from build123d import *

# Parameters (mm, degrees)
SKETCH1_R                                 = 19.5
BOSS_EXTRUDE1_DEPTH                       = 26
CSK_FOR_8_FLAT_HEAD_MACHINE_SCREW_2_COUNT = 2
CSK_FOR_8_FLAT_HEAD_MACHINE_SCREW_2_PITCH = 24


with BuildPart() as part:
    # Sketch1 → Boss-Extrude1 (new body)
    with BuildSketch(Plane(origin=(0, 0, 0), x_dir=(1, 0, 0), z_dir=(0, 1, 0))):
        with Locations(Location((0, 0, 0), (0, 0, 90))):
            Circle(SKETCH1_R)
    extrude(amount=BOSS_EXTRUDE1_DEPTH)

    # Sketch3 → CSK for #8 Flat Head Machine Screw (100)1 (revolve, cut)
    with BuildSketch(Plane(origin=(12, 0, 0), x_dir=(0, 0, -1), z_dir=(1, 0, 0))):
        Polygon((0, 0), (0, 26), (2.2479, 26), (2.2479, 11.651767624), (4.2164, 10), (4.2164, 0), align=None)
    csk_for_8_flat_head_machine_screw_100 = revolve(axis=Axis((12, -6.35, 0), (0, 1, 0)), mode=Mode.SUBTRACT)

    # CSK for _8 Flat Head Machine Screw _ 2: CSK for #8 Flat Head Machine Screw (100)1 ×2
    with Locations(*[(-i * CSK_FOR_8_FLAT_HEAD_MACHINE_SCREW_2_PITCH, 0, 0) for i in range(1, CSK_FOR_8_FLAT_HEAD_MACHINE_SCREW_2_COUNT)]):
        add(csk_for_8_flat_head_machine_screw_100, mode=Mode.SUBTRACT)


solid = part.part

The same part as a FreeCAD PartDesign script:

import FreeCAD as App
import Part
import Sketcher

V = App.Vector
Q = App.Units.Quantity

doc = App.newDocument("Part")
body = doc.addObject("PartDesign::Body", "Body")

sketch1 = doc.addObject("Sketcher::SketchObject", "Sketch")
body.addObject(sketch1)
sketch1.AttachmentSupport = (doc.XZ_Plane, [""])
sketch1.MapMode = "FlatFace"
sketch1.addGeometry(Part.Circle(V(0, 0, 0), V(0, 0, 1), 20), False)
sketch1.addConstraint(Sketcher.Constraint("Coincident", 0, 3, -1, 1))
sketch1.addConstraint(Sketcher.Constraint("Diameter", 0, 39.0))
pad1 = doc.addObject("PartDesign::Pad", "Pad")
body.addObject(pad1)
pad1.Profile = sketch1
pad1.Length = 26
pad1.Reversed = True

sketch2 = doc.addObject("Sketcher::SketchObject", "Sketch001")
body.addObject(sketch2)
sketch2.AttachmentSupport = (doc.YZ_Plane, [""])
sketch2.MapMode = "FlatFace"
sketch2.AttachmentOffset = App.Placement(V(0, 0, 12), App.Rotation())
sketch2.addGeometry(Part.LineSegment(V(26, 0, 0), V(0, 0, 0)), False)
sketch2.addGeometry(Part.LineSegment(V(0, 0, 0), V(0, -4.2, 0)), False)
sketch2.addGeometry(Part.LineSegment(V(0, -4.2, 0), V(10, -4.2, 0)), False)
sketch2.addGeometry(Part.LineSegment(V(10, -4.2, 0), V(11.7, -2.2, 0)), False)
sketch2.addGeometry(Part.LineSegment(V(11.7, -2.2, 0), V(26, -2.2, 0)), False)
sketch2.addGeometry(Part.LineSegment(V(26, -2.2, 0), V(26, 0, 0)), False)
sketch2.addConstraint(Sketcher.Constraint("Coincident", 0, 2, 1, 1))
sketch2.addConstraint(Sketcher.Constraint("Coincident", 1, 2, 2, 1))
sketch2.addConstraint(Sketcher.Constraint("Coincident", 2, 2, 3, 1))
sketch2.addConstraint(Sketcher.Constraint("Coincident", 3, 2, 4, 1))
sketch2.addConstraint(Sketcher.Constraint("Coincident", 4, 2, 5, 1))
sketch2.addConstraint(Sketcher.Constraint("Coincident", 5, 2, 0, 1))
sketch2.addConstraint(Sketcher.Constraint("Horizontal", 0))
sketch2.addConstraint(Sketcher.Constraint("Vertical", 1))
sketch2.addConstraint(Sketcher.Constraint("Horizontal", 2))
sketch2.addConstraint(Sketcher.Constraint("Horizontal", 4))
sketch2.addConstraint(Sketcher.Constraint("Vertical", 5))
sketch2.addConstraint(Sketcher.Constraint("Coincident", 0, 2, -1, 1))
sketch2.addConstraint(Sketcher.Constraint("DistanceX", 0, 2, 0, 1, 26.0))
sketch2.addConstraint(Sketcher.Constraint("DistanceX", 2, 1, 2, 2, 10.0))
sketch2.addConstraint(Sketcher.Constraint("Angle", 3, Q("50 deg")))
sketch2.addConstraint(Sketcher.Constraint("DistanceY", 1, 2, 1, 1, 4.2164))
sketch2.addConstraint(Sketcher.Constraint("DistanceY", 5, 1, 5, 2, 2.2479))
groove = doc.addObject("PartDesign::Groove", "Groove")
body.addObject(groove)
groove.Profile = sketch2
groove.ReferenceAxis = (sketch2, ["H_Axis"])
groove.Angle = 360
doc.recompute()

linearpattern = doc.addObject("PartDesign::LinearPattern", "LinearPattern")
body.addObject(linearpattern)
linearpattern.Originals = [groove]
linearpattern.Direction = (doc.X_Axis, [""])
linearpattern.Mode = "offset"
linearpattern.Offset = 24
linearpattern.Occurrences = 2
linearpattern.Reversed = True
body.Tip = linearpattern

doc.recompute()
